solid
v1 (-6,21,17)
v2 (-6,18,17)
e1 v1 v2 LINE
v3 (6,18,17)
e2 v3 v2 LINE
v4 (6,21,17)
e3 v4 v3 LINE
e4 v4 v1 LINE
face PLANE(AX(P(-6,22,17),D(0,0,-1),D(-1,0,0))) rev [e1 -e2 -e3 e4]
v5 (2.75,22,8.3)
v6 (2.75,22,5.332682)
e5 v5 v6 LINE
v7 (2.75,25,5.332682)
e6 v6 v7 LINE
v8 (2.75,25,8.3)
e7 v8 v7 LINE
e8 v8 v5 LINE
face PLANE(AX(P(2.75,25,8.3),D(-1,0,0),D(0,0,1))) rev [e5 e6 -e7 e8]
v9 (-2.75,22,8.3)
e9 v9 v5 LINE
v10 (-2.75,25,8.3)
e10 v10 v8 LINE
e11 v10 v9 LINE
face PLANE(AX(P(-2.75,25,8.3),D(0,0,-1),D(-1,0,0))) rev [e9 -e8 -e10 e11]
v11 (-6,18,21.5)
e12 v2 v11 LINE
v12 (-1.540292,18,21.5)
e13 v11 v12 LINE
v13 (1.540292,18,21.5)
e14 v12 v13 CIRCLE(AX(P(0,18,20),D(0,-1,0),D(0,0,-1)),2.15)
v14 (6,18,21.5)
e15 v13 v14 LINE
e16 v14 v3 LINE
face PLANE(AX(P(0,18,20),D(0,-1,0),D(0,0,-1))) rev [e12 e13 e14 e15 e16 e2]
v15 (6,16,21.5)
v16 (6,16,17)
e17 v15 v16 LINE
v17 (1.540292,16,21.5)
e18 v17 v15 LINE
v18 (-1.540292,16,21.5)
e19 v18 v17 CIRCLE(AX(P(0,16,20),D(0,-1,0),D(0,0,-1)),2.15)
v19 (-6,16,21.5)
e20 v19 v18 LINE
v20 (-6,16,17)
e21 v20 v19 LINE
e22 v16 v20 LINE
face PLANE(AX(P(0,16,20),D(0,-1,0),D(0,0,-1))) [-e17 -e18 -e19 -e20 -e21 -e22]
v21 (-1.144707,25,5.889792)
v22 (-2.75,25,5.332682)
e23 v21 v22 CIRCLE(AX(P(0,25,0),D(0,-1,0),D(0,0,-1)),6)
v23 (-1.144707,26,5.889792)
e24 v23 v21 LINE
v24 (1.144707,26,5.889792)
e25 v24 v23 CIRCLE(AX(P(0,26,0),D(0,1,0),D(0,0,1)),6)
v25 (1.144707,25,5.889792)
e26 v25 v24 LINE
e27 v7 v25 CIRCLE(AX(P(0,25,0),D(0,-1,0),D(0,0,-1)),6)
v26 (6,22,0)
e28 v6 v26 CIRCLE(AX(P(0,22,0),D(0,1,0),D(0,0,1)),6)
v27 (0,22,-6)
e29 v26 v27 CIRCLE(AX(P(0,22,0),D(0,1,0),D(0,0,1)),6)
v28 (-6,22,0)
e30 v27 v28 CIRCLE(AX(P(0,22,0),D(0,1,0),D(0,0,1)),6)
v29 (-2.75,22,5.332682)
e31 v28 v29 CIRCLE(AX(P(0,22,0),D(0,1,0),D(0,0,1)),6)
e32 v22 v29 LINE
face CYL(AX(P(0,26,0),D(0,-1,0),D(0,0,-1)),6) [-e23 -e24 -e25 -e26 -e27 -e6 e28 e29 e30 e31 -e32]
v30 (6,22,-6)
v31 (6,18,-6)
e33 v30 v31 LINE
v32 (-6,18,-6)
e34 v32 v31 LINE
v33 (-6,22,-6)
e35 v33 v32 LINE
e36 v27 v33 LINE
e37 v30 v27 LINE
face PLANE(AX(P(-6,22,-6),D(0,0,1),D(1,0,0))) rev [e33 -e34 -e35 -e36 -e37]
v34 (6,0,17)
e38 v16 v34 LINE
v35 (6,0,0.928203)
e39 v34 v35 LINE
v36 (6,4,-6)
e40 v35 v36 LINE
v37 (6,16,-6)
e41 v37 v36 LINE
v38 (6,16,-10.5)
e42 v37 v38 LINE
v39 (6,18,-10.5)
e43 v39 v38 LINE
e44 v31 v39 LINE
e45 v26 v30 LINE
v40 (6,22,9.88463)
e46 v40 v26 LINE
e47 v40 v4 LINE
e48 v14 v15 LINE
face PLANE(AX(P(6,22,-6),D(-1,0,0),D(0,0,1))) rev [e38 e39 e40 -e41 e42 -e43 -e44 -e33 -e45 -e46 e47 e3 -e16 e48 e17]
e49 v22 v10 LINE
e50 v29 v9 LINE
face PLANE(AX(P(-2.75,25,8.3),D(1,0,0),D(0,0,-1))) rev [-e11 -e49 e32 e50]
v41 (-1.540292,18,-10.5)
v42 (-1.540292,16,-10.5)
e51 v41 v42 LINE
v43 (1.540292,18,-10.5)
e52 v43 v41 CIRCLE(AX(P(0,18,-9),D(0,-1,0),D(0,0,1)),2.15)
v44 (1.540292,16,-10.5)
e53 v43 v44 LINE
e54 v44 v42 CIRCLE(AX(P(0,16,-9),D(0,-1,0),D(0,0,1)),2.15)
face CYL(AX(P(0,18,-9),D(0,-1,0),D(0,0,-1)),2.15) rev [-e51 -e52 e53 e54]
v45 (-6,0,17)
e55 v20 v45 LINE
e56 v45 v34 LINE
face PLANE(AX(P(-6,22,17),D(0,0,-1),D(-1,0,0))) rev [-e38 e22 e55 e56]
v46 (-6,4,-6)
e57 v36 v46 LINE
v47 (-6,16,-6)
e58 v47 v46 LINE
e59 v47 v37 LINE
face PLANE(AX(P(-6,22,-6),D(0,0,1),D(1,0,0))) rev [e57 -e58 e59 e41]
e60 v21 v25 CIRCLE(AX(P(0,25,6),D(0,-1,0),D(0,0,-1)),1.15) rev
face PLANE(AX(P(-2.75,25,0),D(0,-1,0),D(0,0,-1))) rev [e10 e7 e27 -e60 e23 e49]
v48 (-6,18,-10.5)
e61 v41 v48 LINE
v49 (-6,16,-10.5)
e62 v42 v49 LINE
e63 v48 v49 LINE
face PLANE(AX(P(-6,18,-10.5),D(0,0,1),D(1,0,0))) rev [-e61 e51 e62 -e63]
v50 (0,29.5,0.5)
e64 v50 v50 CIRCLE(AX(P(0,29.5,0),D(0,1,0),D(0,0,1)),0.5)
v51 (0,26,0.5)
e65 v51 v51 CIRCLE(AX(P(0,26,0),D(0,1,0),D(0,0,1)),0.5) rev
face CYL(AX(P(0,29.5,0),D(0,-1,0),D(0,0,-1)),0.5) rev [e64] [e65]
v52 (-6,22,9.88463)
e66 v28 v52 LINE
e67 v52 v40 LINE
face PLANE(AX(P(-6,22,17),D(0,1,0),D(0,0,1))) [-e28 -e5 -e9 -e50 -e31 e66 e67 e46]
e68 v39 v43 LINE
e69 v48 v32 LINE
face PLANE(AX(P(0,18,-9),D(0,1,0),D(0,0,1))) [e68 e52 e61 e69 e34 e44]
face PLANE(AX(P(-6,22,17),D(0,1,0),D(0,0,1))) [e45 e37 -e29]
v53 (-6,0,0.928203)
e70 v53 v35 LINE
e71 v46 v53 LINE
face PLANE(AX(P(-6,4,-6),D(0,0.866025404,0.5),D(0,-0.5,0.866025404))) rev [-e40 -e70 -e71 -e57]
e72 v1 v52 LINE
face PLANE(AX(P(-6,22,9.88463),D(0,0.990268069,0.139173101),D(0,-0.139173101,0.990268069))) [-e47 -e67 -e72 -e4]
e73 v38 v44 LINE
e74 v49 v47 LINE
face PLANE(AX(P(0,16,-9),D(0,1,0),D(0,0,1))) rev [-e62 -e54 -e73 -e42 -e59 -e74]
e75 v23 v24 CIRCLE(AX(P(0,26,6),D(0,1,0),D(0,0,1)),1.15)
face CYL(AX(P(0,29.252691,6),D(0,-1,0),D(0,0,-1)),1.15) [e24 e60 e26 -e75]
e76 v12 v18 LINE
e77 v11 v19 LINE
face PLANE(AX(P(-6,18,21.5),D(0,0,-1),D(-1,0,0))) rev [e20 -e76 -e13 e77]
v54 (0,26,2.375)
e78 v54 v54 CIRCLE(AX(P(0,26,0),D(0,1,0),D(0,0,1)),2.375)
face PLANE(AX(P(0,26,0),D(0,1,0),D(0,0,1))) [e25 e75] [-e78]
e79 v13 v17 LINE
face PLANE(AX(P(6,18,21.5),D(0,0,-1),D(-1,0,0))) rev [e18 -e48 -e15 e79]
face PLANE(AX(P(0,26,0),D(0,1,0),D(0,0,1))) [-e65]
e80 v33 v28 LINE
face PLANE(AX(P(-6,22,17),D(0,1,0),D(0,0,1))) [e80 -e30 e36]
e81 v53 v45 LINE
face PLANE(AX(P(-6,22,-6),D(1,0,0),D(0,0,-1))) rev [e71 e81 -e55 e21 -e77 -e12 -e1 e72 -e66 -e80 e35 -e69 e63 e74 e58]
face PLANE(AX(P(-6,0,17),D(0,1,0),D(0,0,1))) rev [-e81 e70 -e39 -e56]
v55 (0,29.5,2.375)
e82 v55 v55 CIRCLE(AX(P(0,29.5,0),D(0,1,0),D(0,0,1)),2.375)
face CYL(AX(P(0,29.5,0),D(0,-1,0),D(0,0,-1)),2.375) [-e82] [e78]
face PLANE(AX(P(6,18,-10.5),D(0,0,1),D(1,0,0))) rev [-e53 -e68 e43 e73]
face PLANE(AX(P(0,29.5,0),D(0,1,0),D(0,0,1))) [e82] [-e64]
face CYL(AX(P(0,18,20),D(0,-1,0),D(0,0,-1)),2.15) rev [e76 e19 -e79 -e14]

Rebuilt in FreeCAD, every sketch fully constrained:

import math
import FreeCAD as App
import Part
import Sketcher


def edges_at(feature, points):
    """Names of the edges that pass closest to the given points."""
    edges = feature.Shape.Edges
    near = lambda p: min(range(len(edges)), key=lambda i: edges[i].distToShape(Part.Vertex(*p))[0])
    return sorted({f"Edge{near(p) + 1}" for p in points})


def add_polygon(sketch, points):
    """Adds a closed chain of lines whose ends are joined by coincident constraints."""
    first, n = sketch.GeometryCount, len(points)
    for a, b in zip(points, points[1:] + points[:1]):
        sketch.addGeometry(Part.LineSegment(App.Vector(*a, 0), App.Vector(*b, 0)), False)
    for i in range(n):
        sketch.addConstraint(Sketcher.Constraint("Coincident", first + i, 2, first + (i + 1) % n, 1))

doc = App.newDocument("Part")
body = doc.addObject("PartDesign::Body", "Body")

# Sketch on XZ plane
sketch1 = doc.addObject("Sketcher::SketchObject", "Sketch")
body.addObject(sketch1)
sketch1.AttachmentSupport = (doc.XZ_Plane, [""])
sketch1.MapMode = "FlatFace"
add_polygon(sketch1, [(-6, -6), (-6, 17), (6, 17), (6, -6)])  # lines 0-3
sketch1.addConstraint([
    Sketcher.Constraint("Vertical", 0),
    Sketcher.Constraint("Horizontal", 1),
    Sketcher.Constraint("Vertical", 2),
    Sketcher.Constraint("Horizontal", 3),
    Sketcher.Constraint("DistanceX", 1, 1, 1, 2, 12.0),
    Sketcher.Constraint("DistanceY", 0, 1, 0, 2, 23.0),
    Sketcher.Constraint("DistanceX", 0, 2, -1, 1, 6.0),
    Sketcher.Constraint("DistanceY", -1, 1, 0, 2, 17.0),
])
pad1 = doc.addObject("PartDesign::Pad", "Pad")
body.addObject(pad1)
pad1.Profile = sketch1
pad1.Length = 22
pad1.Reversed = True
doc.recompute()

chamfer = doc.addObject("PartDesign::Chamfer", "Chamfer")
body.addObject(chamfer)
chamfer.Base = (pad1, edges_at(pad1, [(0, 0, -6)]))
chamfer.ChamferType = "Two distances"
chamfer.Size = 4
chamfer.Size2 = 6.928203

# Sketch on XZ plane
sketch2 = doc.addObject("Sketcher::SketchObject", "Sketch001")
body.addObject(sketch2)
sketch2.AttachmentSupport = (doc.XZ_Plane, [""])
sketch2.MapMode = "FlatFace"
sketch2.AttachmentOffset = App.Placement(App.Vector(0, 0, -16), App.Rotation())
sketch2.addGeometry([
    Part.LineSegment(App.Vector(-6, -10.5, 0), App.Vector(-6, -6, 0)),  # 0
    Part.LineSegment(App.Vector(-6, -6, 0), App.Vector(6, -6, 0)),  # 1
    Part.LineSegment(App.Vector(6, -6, 0), App.Vector(6, -10.5, 0)),  # 2
    Part.LineSegment(App.Vector(6, -10.5, 0), App.Vector(1.5, -10.5, 0)),  # 3
    Part.ArcOfCircle(Part.Circle(App.Vector(0, -9, 0), App.Vector(0, 0, 1), 2.1), math.radians(-44), math.radians(224)),  # 4
    Part.LineSegment(App.Vector(-1.5, -10.5, 0), App.Vector(-6, -10.5, 0)),  # 5
    Part.LineSegment(App.Vector(1.5, 21.5, 0), App.Vector(6, 21.5, 0)),  # 6
    Part.LineSegment(App.Vector(6, 21.5, 0), App.Vector(6, 17, 0)),  # 7
    Part.LineSegment(App.Vector(6, 17, 0), App.Vector(-6, 17, 0)),  # 8
    Part.LineSegment(App.Vector(-6, 17, 0), App.Vector(-6, 21.5, 0)),  # 9
    Part.LineSegment(App.Vector(-6, 21.5, 0), App.Vector(-1.5, 21.5, 0)),  # 10
    Part.ArcOfCircle(Part.Circle(App.Vector(0, 20, 0), App.Vector(0, 0, 1), 2.1), math.radians(136), math.radians(404)),  # 11
], False)
sketch2.addConstraint([
    Sketcher.Constraint("Coincident", 0, 2, 1, 1),
    Sketcher.Constraint("Coincident", 1, 2, 2, 1),
    Sketcher.Constraint("Coincident", 2, 2, 3, 1),
    Sketcher.Constraint("Coincident", 3, 2, 4, 1),
    Sketcher.Constraint("Coincident", 4, 2, 5, 1),
    Sketcher.Constraint("Coincident", 5, 2, 0, 1),
    Sketcher.Constraint("Coincident", 6, 2, 7, 1),
    Sketcher.Constraint("Coincident", 7, 2, 8, 1),
    Sketcher.Constraint("Coincident", 8, 2, 9, 1),
    Sketcher.Constraint("Coincident", 9, 2, 10, 1),
    Sketcher.Constraint("Coincident", 10, 2, 11, 1),
    Sketcher.Constraint("Coincident", 11, 2, 6, 1),
    Sketcher.Constraint("Vertical", 0),
    Sketcher.Constraint("Horizontal", 1),
    Sketcher.Constraint("Vertical", 2),
    Sketcher.Constraint("Horizontal", 3),
    Sketcher.Constraint("Horizontal", 5),
    Sketcher.Constraint("Horizontal", 6),
    Sketcher.Constraint("Vertical", 7),
    Sketcher.Constraint("Horizontal", 8),
    Sketcher.Constraint("Vertical", 9),
    Sketcher.Constraint("Horizontal", 10),
    Sketcher.Constraint("Equal", 4, 11),
    Sketcher.Constraint("Symmetric", 3, 2, 4, 2, -2),
    Sketcher.Constraint("Symmetric", 6, 2, 9, 2, -2),
    Sketcher.Constraint("PointOnObject", 11, 3, -2),
    Sketcher.Constraint("Vertical", 2, 2, 6, 2),
    Sketcher.Constraint("Vertical", 5, 2, 8, 2),
    Sketcher.Constraint("Vertical", 4, 2, 10, 2),
    Sketcher.Constraint("Equal", 2, 7),
    Sketcher.Constraint("DistanceX", 1, 1, 1, 2, 12.0),
    Sketcher.Constraint("Radius", 4, 2.15),
    Sketcher.Constraint("DistanceY", 0, 1, 0, 2, 4.5),
    Sketcher.Constraint("DistanceY", 4, 3, -1, 1, 9.0),
    Sketcher.Constraint("DistanceY", -1, 1, 11, 3, 20.0),
    Sketcher.Constraint("DistanceY", 0, 2, -1, 1, 6.0),
])
pad2 = doc.addObject("PartDesign::Pad", "Pad001")
body.addObject(pad2)
pad2.Profile = sketch2
pad2.Length = 2
pad2.Reversed = True

# Sketch on XZ plane
sketch3 = doc.addObject("Sketcher::SketchObject", "Sketch002")
body.addObject(sketch3)
sketch3.AttachmentSupport = (doc.XZ_Plane, [""])
sketch3.MapMode = "FlatFace"
sketch3.AttachmentOffset = App.Placement(App.Vector(0, 0, -22), App.Rotation())
sketch3.addGeometry(Part.Circle(App.Vector(0, 0, 0), App.Vector(0, 0, 1), 6), False)
sketch3.addConstraint([
    Sketcher.Constraint("Coincident", 0, 3, -1, 1),
    Sketcher.Constraint("Diameter", 0, 12.0),
])
pad3 = doc.addObject("PartDesign::Pad", "Pad002")
body.addObject(pad3)
pad3.Profile = sketch3
pad3.Length = 4
pad3.Reversed = True

# Sketch on XZ plane
sketch4 = doc.addObject("Sketcher::SketchObject", "Sketch003")
body.addObject(sketch4)
sketch4.AttachmentSupport = (doc.XZ_Plane, [""])
sketch4.MapMode = "FlatFace"
sketch4.AttachmentOffset = App.Placement(App.Vector(0, 0, -22), App.Rotation())
add_polygon(sketch4, [(-3, 0), (-3, 8), (3, 8), (3, 0)])  # lines 0-3
sketch4.addConstraint([
    Sketcher.Constraint("Vertical", 0),
    Sketcher.Constraint("Horizontal", 1),
    Sketcher.Constraint("Vertical", 2),
    Sketcher.Constraint("Horizontal", 3),
    Sketcher.Constraint("Symmetric", 2, 2, 3, 2, -1, 1),
    Sketcher.Constraint("DistanceX", 1, 1, 1, 2, 5.5),
    Sketcher.Constraint("DistanceY", 0, 1, 0, 2, 8.3),
])
pad4 = doc.addObject("PartDesign::Pad", "Pad003")
body.addObject(pad4)
pad4.Profile = sketch4
pad4.Length = 3
pad4.Reversed = True

# Sketch on XZ plane
sketch5 = doc.addObject("Sketcher::SketchObject", "Sketch004")
body.addObject(sketch5)
sketch5.AttachmentSupport = (doc.XZ_Plane, [""])
sketch5.MapMode = "FlatFace"
sketch5.AttachmentOffset = App.Placement(App.Vector(0, 0, -25), App.Rotation())
sketch5.addGeometry(Part.Circle(App.Vector(0, 6, 0), App.Vector(0, 0, 1), 1.1), False)
sketch5.addConstraint([
    Sketcher.Constraint("PointOnObject", 0, 3, -2),
    Sketcher.Constraint("Diameter", 0, 2.3),
    Sketcher.Constraint("DistanceY", -1, 1, 0, 3, 6.0),
])
pad5 = doc.addObject("PartDesign::Pad", "Pad004")
body.addObject(pad5)
pad5.Profile = sketch5
pad5.Length = 1
pad5.Reversed = True

# Sketch on XZ plane
sketch6 = doc.addObject("Sketcher::SketchObject", "Sketch005")
body.addObject(sketch6)
sketch6.AttachmentSupport = (doc.XZ_Plane, [""])
sketch6.MapMode = "FlatFace"
sketch6.AttachmentOffset = App.Placement(App.Vector(0, 0, -26), App.Rotation())
sketch6.addGeometry([
    Part.Circle(App.Vector(0, 0, 0), App.Vector(0, 0, 1), 2.4),
    Part.Circle(App.Vector(0, 0, 0), App.Vector(0, 0, 1), 0.5),
], False)
sketch6.addConstraint([
    Sketcher.Constraint("Coincident", 0, 3, -1, 1),
    Sketcher.Constraint("Coincident", 1, 3, -1, 1),
    Sketcher.Constraint("Diameter", 1, 1.0),
    Sketcher.Constraint("Diameter", 0, 4.75),
])
pad6 = doc.addObject("PartDesign::Pad", "Pad005")
body.addObject(pad6)
pad6.Profile = sketch6
pad6.Length = 3.5
pad6.Reversed = True
doc.recompute()

chamfer2 = doc.addObject("PartDesign::Chamfer", "Chamfer001")
body.addObject(chamfer2)
chamfer2.Base = (pad6, edges_at(pad6, [(0, 22, 17)]))
chamfer2.ChamferType = "Two distances"
chamfer2.Size = 1
chamfer2.Size2 = 7.11537
chamfer2.FlipDirection = True

doc.recompute()
